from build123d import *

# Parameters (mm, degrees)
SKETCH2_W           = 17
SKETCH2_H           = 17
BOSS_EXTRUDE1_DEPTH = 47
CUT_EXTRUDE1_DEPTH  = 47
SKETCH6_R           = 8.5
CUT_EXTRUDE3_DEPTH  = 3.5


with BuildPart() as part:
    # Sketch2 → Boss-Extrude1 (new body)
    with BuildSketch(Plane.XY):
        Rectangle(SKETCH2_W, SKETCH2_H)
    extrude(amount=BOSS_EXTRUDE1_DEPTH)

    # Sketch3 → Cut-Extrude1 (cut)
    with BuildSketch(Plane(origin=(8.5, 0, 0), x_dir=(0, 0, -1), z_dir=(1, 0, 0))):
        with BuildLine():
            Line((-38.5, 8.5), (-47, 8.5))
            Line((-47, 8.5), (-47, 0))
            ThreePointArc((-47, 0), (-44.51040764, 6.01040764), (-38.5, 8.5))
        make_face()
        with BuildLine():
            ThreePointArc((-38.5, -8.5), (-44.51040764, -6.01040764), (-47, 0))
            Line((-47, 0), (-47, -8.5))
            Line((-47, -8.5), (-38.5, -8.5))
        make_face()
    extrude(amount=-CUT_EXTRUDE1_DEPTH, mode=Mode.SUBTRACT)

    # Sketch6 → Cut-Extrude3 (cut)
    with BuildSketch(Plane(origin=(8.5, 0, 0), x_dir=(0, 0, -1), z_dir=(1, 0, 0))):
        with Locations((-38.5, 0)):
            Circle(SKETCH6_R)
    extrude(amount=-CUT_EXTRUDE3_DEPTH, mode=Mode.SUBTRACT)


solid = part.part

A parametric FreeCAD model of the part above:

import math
import FreeCAD as App
import Part
import Sketcher

V = App.Vector


def add_polygon(sketch, points):
    """Adds a closed chain of lines whose ends are joined by coincident constraints."""
    first, n = sketch.GeometryCount, len(points)
    for a, b in zip(points, points[1:] + points[:1]):
        sketch.addGeometry(Part.LineSegment(App.Vector(*a, 0), App.Vector(*b, 0)), False)
    for i in range(n):
        sketch.addConstraint(Sketcher.Constraint("Coincident", first + i, 2, first + (i + 1) % n, 1))

doc = App.newDocument("Part")
body = doc.addObject("PartDesign::Body", "Body")

sketch1 = body.newObject("Sketcher::SketchObject", "Sketch")
sketch1.AttachmentSupport = (doc.getObject("XY_Plane"), [""])
sketch1.MapMode = "FlatFace"
add_polygon(sketch1, [(-8, 8), (-8, -8), (8, -8), (8, 8)])
sketch1.addConstraint([
    Sketcher.Constraint("Vertical", 0),
    Sketcher.Constraint("Horizontal", 1),
    Sketcher.Constraint("Vertical", 2),
    Sketcher.Constraint("Horizontal", 3),
    Sketcher.Constraint("Symmetric", 0, 2, 2, 2, -1, 1),
    Sketcher.Constraint("Equal", 3, 0),
    Sketcher.Constraint("DistanceX", 1, 1, 1, 2, 17.0),
])
pad1 = body.newObject("PartDesign::Pad", "Pad")
pad1.Profile = sketch1
pad1.Length = 47

sketch2 = body.newObject("Sketcher::SketchObject", "Sketch001")
sketch2.AttachmentSupport = (doc.getObject("YZ_Plane"), [""])
sketch2.MapMode = "FlatFace"
sketch2.AttachmentOffset = App.Placement(V(0, 0, 8.5), App.Rotation())
sketch2.addGeometry([
    Part.LineSegment(V(8, 38, 0), V(8, 47, 0)),
    Part.LineSegment(V(8, 47, 0), V(0, 47, 0)),
    Part.ArcOfCircle(Part.Circle(V(0, 38, 0), V(0, 0, 1), 8), math.radians(0), math.radians(90)),
    Part.ArcOfCircle(Part.Circle(V(0, 38, 0), V(0, 0, 1), 8), math.radians(90), math.radians(180)),
    Part.LineSegment(V(0, 47, 0), V(-8, 47, 0)),
    Part.LineSegment(V(-8, 47, 0), V(-8, 38, 0)),
], False)
sketch2.addConstraint([
    Sketcher.Constraint("Coincident", 0, 2, 1, 1),
    Sketcher.Constraint("Tangent", 1, 2, 2, 2),
    Sketcher.Constraint("Tangent", 2, 1, 0, 1),
    Sketcher.Constraint("Tangent", 3, 1, 4, 1),
    Sketcher.Constraint("Coincident", 4, 2, 5, 1),
    Sketcher.Constraint("Tangent", 5, 2, 3, 2),
    Sketcher.Constraint("Vertical", 0),
    Sketcher.Constraint("Horizontal", 1),
    Sketcher.Constraint("Horizontal", 4),
    Sketcher.Constraint("Vertical", 5),
    Sketcher.Constraint("Coincident", 3, 3, 2, 3),
    Sketcher.Constraint("Equal", 2, 3),
    Sketcher.Constraint("PointOnObject", 2, 3, -2),
    Sketcher.Constraint("Radius", 2, 8.5),
    Sketcher.Constraint("DistanceY", -1, 1, 0, 2, 47.0),
])
pocket1 = body.newObject("PartDesign::Pocket", "Pocket")
pocket1.Profile = sketch2
pocket1.Length = 47

sketch3 = body.newObject("Sketcher::SketchObject", "Sketch002")
sketch3.AttachmentSupport = (doc.getObject("YZ_Plane"), [""])
sketch3.MapMode = "FlatFace"
sketch3.AttachmentOffset = App.Placement(V(0, 0, 8.5), App.Rotation())
sketch3.addGeometry(Part.Circle(V(0, 38, 0), V(0, 0, 1), 8), False)
sketch3.addConstraint([
    Sketcher.Constraint("PointOnObject", 0, 3, -2),
    Sketcher.Constraint("Diameter", 0, 17.0),
    Sketcher.Constraint("DistanceY", -1, 1, 0, 3, 38.5),
])
pocket2 = body.newObject("PartDesign::Pocket", "Pocket001")
pocket2.Profile = sketch3
pocket2.Length = 3.5

doc.recompute()
